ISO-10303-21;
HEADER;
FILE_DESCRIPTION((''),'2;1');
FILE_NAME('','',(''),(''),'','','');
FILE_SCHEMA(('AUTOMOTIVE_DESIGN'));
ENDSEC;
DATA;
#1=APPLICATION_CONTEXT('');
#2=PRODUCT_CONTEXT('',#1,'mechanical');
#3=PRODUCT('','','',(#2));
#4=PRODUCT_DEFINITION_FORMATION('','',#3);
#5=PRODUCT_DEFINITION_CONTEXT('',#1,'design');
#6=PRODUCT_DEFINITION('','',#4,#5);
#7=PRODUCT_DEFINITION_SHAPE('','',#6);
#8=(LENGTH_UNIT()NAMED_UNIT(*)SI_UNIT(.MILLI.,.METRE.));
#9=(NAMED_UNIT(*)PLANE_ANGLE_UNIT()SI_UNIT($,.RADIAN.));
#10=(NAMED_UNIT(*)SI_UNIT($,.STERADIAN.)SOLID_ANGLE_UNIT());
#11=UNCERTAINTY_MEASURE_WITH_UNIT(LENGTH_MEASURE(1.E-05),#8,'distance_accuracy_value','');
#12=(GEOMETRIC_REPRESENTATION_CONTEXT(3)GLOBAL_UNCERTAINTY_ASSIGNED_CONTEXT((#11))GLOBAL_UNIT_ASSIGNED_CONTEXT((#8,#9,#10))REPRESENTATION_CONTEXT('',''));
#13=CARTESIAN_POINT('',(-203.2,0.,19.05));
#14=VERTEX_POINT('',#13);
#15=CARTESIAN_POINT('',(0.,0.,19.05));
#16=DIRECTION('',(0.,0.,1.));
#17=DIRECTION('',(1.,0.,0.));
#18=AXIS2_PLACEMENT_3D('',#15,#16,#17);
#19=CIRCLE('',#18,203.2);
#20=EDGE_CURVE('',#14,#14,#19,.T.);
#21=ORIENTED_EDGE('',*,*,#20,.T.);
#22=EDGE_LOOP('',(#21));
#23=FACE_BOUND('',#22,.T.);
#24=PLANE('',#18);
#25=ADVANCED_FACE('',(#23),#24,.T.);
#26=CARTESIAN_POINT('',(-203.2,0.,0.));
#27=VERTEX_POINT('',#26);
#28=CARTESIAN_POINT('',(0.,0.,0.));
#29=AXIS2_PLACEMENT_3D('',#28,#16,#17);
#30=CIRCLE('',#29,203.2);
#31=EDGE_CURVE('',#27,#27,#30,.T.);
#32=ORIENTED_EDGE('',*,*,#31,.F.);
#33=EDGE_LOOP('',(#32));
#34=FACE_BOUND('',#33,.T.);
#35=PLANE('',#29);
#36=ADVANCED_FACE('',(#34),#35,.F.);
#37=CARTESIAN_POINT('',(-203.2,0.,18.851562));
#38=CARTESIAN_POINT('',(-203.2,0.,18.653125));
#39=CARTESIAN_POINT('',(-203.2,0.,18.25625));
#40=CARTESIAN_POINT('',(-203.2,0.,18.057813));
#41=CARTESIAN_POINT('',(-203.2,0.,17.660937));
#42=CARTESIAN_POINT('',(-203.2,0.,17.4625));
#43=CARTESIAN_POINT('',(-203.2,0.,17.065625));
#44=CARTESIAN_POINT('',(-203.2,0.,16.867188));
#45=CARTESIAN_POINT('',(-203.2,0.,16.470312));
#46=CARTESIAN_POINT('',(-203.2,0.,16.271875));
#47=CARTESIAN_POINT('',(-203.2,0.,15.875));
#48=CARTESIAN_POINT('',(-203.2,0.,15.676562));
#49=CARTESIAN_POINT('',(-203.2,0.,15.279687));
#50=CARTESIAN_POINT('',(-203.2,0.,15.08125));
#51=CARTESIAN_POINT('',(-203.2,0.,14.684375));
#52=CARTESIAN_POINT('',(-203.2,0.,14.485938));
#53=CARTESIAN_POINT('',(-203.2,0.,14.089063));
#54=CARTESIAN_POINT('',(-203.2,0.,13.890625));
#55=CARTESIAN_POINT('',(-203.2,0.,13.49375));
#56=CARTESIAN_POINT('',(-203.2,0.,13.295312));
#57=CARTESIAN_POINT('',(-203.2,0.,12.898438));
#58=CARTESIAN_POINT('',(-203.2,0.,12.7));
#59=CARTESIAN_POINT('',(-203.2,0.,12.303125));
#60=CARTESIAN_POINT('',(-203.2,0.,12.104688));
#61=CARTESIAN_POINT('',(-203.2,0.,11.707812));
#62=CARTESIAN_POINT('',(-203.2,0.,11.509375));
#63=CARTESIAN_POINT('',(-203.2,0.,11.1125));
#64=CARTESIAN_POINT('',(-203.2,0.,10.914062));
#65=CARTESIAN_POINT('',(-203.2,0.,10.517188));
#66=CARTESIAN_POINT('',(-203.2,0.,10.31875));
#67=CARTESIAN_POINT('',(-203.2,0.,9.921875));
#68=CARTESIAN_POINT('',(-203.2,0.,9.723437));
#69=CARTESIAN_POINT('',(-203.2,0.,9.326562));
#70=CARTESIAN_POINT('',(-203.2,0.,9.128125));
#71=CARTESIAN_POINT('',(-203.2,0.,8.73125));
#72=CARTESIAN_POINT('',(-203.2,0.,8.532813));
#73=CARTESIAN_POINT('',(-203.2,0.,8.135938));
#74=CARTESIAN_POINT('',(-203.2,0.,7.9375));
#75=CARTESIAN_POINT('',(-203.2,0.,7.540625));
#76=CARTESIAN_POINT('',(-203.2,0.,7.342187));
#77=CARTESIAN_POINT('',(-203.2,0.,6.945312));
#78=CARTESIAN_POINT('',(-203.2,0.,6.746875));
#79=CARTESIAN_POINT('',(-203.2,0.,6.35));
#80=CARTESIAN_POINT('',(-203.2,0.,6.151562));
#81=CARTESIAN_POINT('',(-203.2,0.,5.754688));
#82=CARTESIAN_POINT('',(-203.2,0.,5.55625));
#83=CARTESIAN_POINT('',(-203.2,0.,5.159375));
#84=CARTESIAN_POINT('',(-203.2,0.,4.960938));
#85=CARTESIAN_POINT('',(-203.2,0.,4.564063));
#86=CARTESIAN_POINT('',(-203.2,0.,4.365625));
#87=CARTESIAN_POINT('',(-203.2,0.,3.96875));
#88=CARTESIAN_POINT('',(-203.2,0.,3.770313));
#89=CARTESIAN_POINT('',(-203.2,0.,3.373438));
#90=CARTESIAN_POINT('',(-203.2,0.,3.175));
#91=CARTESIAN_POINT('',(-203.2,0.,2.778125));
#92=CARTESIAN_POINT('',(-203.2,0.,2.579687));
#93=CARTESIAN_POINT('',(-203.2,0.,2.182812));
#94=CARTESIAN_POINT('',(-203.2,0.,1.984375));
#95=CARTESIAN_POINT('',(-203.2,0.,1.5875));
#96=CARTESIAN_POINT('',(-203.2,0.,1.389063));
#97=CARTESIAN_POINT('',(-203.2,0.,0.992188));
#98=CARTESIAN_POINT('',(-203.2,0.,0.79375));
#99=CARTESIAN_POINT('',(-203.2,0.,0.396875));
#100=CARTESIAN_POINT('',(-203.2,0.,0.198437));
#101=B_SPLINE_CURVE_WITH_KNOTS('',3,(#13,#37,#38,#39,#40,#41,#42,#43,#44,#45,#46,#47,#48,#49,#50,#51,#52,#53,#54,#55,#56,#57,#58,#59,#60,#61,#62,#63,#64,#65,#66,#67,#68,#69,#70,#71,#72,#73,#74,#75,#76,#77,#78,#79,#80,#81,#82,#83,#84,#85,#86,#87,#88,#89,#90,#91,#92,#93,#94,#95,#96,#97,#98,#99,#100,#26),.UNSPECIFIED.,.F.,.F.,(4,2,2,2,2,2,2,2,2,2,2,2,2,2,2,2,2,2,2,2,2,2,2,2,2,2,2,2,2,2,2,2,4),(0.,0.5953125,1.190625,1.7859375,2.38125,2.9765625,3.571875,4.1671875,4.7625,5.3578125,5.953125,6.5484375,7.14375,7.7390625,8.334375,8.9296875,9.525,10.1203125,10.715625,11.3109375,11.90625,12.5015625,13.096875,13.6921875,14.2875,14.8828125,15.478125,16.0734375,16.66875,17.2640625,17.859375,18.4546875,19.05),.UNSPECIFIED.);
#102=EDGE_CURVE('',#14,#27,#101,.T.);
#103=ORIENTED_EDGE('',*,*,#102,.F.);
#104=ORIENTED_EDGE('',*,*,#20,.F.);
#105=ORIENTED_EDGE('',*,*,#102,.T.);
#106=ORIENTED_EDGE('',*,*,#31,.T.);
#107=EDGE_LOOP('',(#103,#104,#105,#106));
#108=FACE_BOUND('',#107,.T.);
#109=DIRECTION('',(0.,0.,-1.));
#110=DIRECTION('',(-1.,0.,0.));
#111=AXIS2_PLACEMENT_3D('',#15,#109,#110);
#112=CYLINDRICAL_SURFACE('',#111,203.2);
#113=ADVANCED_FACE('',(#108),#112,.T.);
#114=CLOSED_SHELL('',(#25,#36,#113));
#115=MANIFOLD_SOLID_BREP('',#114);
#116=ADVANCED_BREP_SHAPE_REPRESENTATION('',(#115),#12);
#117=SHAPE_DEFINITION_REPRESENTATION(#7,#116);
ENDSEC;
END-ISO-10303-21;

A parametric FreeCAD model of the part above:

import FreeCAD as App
import Part
import Sketcher
Q = App.Units.Quantity

doc = App.newDocument("Part")
params = doc.addObject("Spreadsheet::Sheet", "Params")
for row, (alias, value) in enumerate([
    ("sketch1_diameter", "16 in"),
    ("pad1_length", "0.75 in"),
], start=1):
    params.set(f"A{row}", alias)
    params.set(f"B{row}", "=" + value)
    params.setAlias(f"B{row}", alias)

body = doc.addObject("PartDesign::Body", "Body")

# Sketch on XY plane
sketch1 = body.newObject("Sketcher::SketchObject", "Sketch")
sketch1.AttachmentSupport = (doc.getObject("XY_Plane"), [""])
sketch1.MapMode = "FlatFace"
sketch1.addGeometry(Part.Circle(App.Vector(0, 0, 0), App.Vector(0, 0, 1), 203), False)
sketch1.addConstraint([
    Sketcher.Constraint("Coincident", 0, 3, -1, 1),
    Sketcher.Constraint("Diameter", 0, Q("16 in")),
])
sketch1.setExpression("Constraints[1]", "Params.sketch1_diameter")
pad1 = body.newObject("PartDesign::Pad", "Pad")
pad1.Profile = sketch1
pad1.setExpression("Length", "Params.pad1_length")

doc.recompute()
